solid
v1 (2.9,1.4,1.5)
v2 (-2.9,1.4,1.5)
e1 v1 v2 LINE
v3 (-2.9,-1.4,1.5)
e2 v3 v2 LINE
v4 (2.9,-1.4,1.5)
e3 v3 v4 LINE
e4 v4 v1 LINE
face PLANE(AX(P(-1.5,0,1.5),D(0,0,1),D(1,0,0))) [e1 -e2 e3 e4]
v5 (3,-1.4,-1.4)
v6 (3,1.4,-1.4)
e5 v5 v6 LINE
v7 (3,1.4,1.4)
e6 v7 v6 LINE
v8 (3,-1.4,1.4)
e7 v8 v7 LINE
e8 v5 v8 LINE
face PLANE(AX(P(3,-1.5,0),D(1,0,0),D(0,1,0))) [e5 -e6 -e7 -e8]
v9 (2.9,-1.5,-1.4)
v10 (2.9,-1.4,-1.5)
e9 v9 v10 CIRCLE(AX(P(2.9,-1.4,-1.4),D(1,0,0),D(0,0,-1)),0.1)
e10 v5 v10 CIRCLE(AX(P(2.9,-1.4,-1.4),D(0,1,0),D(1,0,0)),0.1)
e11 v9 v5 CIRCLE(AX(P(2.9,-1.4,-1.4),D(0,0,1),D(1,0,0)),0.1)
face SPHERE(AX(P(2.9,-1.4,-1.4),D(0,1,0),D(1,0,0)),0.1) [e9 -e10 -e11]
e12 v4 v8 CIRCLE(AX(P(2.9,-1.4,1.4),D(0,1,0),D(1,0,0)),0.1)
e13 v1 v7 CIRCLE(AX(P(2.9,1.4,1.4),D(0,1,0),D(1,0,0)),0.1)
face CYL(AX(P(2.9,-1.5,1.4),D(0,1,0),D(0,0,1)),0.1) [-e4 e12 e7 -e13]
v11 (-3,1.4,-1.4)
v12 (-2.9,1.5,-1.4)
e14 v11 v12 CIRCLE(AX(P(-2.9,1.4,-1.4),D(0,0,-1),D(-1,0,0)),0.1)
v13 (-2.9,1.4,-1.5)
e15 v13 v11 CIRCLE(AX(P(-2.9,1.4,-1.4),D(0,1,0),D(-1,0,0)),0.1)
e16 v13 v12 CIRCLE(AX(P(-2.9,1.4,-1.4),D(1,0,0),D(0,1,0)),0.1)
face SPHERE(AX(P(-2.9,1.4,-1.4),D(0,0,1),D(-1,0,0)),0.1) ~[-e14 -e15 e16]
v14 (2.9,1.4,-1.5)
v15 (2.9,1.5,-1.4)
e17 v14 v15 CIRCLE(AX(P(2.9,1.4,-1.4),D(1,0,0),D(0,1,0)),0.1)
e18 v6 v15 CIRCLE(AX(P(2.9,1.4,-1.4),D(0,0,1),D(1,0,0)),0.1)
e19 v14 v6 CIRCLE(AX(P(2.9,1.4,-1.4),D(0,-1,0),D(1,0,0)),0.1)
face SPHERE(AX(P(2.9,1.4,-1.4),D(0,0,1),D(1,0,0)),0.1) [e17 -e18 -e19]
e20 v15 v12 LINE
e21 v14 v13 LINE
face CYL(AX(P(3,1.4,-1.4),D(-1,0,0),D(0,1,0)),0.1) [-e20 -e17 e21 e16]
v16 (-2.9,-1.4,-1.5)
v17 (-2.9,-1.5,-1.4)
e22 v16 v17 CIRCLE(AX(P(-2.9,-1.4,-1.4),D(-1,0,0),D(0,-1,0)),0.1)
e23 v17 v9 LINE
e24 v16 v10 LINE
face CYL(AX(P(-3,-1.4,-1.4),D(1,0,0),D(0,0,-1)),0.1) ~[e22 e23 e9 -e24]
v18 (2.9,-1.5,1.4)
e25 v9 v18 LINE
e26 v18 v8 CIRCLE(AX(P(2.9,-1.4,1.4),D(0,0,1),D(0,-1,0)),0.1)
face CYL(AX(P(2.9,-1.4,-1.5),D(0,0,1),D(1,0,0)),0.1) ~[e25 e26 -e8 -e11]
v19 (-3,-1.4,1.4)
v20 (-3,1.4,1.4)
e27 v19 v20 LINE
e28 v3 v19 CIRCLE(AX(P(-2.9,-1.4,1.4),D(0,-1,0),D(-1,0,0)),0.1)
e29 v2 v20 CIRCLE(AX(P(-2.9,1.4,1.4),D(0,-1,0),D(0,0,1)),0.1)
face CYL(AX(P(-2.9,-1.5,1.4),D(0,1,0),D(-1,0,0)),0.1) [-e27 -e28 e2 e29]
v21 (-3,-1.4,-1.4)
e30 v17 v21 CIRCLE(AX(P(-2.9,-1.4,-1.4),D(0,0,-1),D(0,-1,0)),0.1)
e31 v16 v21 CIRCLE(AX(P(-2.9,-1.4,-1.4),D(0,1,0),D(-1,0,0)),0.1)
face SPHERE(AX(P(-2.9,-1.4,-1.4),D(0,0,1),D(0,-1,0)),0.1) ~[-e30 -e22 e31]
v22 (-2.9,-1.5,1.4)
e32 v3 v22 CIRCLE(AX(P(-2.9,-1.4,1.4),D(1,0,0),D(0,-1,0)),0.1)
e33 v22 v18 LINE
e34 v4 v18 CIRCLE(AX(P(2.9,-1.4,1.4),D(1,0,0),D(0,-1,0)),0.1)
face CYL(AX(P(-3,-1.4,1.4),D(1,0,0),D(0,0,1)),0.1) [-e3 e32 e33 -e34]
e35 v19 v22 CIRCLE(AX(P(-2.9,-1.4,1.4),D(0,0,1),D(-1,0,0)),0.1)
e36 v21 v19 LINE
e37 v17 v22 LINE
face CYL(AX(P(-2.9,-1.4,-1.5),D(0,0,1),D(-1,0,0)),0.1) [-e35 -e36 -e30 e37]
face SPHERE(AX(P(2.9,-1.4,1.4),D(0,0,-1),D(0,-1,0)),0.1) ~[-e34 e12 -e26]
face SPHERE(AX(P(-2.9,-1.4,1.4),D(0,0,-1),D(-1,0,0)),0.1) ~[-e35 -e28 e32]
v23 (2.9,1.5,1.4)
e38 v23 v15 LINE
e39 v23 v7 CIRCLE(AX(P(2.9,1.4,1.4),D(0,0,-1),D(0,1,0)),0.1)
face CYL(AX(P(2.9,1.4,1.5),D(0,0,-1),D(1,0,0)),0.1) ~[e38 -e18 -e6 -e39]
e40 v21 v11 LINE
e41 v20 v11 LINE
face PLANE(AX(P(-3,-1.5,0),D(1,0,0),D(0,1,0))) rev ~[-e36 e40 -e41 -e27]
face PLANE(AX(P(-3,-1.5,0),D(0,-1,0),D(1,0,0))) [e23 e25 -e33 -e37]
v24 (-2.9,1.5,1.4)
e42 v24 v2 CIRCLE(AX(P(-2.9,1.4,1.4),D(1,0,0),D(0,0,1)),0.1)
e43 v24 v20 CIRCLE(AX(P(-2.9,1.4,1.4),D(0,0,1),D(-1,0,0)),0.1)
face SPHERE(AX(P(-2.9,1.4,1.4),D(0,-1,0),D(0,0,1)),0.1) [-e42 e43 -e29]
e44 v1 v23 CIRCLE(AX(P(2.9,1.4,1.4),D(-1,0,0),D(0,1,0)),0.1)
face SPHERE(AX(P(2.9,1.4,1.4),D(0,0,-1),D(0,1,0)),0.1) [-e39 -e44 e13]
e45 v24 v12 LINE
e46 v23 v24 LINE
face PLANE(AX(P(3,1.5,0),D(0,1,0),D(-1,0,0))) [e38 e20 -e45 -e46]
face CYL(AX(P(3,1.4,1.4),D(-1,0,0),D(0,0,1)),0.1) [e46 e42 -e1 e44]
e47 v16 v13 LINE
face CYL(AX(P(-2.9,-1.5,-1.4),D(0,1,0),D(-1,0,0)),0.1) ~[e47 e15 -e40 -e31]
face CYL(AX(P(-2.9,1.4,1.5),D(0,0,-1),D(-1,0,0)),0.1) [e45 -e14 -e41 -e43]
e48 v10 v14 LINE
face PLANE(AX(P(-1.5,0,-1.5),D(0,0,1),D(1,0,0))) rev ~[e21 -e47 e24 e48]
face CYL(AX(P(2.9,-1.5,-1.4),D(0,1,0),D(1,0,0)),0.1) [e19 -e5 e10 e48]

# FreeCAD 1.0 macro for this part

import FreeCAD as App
import Part
import Sketcher
from FreeCAD import Vector


def add_polygon(sketch, points):
    """Adds a closed chain of lines whose ends are joined by coincident constraints."""
    first, n = sketch.GeometryCount, len(points)
    for a, b in zip(points, points[1:] + points[:1]):
        sketch.addGeometry(Part.LineSegment(App.Vector(*a, 0), App.Vector(*b, 0)), False)
    for i in range(n):
        sketch.addConstraint(Sketcher.Constraint("Coincident", first + i, 2, first + (i + 1) % n, 1))

doc = App.newDocument("Part")
body = doc.addObject("PartDesign::Body", "Body")

# Sketch on XY plane
sketch1 = body.newObject("Sketcher::SketchObject", "Sketch")
sketch1.AttachmentSupport = (doc.getObject("XY_Plane"), [""])
sketch1.MapMode = "FlatFace"
add_polygon(sketch1, [(-3, 1.5), (-3, -1.5), (3, -1.5), (3, 1.5)])  # lines 0-3
sketch1.addConstraint([
    Sketcher.Constraint("Vertical", 0),
    Sketcher.Constraint("Horizontal", 1),
    Sketcher.Constraint("Vertical", 2),
    Sketcher.Constraint("Horizontal", 3),
    Sketcher.Constraint("Symmetric", 0, 2, 2, 2, -1, 1),
    Sketcher.Constraint("DistanceX", 1, 1, 1, 2, 6.0),
    Sketcher.Constraint("DistanceY", 0, 2, 0, 1, 3.0),
])
pad1 = body.newObject("PartDesign::Pad", "Pad")
pad1.Profile = sketch1
pad1.Length = 3
pad1.Midplane = True
doc.recompute()

fillet = body.newObject("PartDesign::Fillet", "Fillet")
fillet.Base = (pad1, ["Edge1"])
fillet.UseAllEdges = True
fillet.Radius = 0.1

doc.recompute()
